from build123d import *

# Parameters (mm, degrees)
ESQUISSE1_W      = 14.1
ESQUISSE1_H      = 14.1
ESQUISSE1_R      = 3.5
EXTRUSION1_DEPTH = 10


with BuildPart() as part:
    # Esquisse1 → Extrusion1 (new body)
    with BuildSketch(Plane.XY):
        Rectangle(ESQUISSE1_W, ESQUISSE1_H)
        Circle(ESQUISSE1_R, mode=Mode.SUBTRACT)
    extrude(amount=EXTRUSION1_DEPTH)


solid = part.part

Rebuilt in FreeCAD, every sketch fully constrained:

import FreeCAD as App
import Part
import Sketcher
Q = App.Units.Quantity

doc = App.newDocument("Part")
body = doc.addObject("PartDesign::Body", "Body")

# Sketch on XY plane
sketch1 = body.newObject("Sketcher::SketchObject", "Sketch")
sketch1.AttachmentSupport = (doc.getObject("XY_Plane"), [""])
sketch1.MapMode = "FlatFace"
sketch1.addGeometry([
    Part.LineSegment(App.Vector(-7.05, 7.05, 0), App.Vector(-7.05, -7.05, 0)),  # 0
    Part.LineSegment(App.Vector(-7.05, -7.05, 0), App.Vector(7.05, -7.05, 0)),  # 1
    Part.LineSegment(App.Vector(7.05, -7.05, 0), App.Vector(7.05, 7.05, 0)),  # 2
    Part.LineSegment(App.Vector(7.05, 7.05, 0), App.Vector(-7.05, 7.05, 0)),  # 3
    Part.Circle(App.Vector(0, 0, 0), App.Vector(0, 0, 1), 3.5),  # 4
], False)
sketch1.addConstraint([
    Sketcher.Constraint("Coincident", 0, 2, 1, 1),
    Sketcher.Constraint("Coincident", 1, 2, 2, 1),
    Sketcher.Constraint("Coincident", 2, 2, 3, 1),
    Sketcher.Constraint("Coincident", 3, 2, 0, 1),
    Sketcher.Constraint("Vertical", 0),
    Sketcher.Constraint("Horizontal", 1),
    Sketcher.Constraint("Vertical", 2),
    Sketcher.Constraint("Horizontal", 3),
    Sketcher.Constraint("Coincident", 4, 3, -1, 1),
    Sketcher.Constraint("Symmetric", 0, 2, 2, 2, -1, 1),
    Sketcher.Constraint("Equal", 3, 0),
    Sketcher.Constraint("Diameter", 4, Q("7 mm")),
    Sketcher.Constraint("DistanceX", 1, 1, 1, 2, Q("14.1 mm")),
])
pad1 = body.newObject("PartDesign::Pad", "Pad")
pad1.Profile = sketch1
pad1.Length = 10

doc.recompute()
